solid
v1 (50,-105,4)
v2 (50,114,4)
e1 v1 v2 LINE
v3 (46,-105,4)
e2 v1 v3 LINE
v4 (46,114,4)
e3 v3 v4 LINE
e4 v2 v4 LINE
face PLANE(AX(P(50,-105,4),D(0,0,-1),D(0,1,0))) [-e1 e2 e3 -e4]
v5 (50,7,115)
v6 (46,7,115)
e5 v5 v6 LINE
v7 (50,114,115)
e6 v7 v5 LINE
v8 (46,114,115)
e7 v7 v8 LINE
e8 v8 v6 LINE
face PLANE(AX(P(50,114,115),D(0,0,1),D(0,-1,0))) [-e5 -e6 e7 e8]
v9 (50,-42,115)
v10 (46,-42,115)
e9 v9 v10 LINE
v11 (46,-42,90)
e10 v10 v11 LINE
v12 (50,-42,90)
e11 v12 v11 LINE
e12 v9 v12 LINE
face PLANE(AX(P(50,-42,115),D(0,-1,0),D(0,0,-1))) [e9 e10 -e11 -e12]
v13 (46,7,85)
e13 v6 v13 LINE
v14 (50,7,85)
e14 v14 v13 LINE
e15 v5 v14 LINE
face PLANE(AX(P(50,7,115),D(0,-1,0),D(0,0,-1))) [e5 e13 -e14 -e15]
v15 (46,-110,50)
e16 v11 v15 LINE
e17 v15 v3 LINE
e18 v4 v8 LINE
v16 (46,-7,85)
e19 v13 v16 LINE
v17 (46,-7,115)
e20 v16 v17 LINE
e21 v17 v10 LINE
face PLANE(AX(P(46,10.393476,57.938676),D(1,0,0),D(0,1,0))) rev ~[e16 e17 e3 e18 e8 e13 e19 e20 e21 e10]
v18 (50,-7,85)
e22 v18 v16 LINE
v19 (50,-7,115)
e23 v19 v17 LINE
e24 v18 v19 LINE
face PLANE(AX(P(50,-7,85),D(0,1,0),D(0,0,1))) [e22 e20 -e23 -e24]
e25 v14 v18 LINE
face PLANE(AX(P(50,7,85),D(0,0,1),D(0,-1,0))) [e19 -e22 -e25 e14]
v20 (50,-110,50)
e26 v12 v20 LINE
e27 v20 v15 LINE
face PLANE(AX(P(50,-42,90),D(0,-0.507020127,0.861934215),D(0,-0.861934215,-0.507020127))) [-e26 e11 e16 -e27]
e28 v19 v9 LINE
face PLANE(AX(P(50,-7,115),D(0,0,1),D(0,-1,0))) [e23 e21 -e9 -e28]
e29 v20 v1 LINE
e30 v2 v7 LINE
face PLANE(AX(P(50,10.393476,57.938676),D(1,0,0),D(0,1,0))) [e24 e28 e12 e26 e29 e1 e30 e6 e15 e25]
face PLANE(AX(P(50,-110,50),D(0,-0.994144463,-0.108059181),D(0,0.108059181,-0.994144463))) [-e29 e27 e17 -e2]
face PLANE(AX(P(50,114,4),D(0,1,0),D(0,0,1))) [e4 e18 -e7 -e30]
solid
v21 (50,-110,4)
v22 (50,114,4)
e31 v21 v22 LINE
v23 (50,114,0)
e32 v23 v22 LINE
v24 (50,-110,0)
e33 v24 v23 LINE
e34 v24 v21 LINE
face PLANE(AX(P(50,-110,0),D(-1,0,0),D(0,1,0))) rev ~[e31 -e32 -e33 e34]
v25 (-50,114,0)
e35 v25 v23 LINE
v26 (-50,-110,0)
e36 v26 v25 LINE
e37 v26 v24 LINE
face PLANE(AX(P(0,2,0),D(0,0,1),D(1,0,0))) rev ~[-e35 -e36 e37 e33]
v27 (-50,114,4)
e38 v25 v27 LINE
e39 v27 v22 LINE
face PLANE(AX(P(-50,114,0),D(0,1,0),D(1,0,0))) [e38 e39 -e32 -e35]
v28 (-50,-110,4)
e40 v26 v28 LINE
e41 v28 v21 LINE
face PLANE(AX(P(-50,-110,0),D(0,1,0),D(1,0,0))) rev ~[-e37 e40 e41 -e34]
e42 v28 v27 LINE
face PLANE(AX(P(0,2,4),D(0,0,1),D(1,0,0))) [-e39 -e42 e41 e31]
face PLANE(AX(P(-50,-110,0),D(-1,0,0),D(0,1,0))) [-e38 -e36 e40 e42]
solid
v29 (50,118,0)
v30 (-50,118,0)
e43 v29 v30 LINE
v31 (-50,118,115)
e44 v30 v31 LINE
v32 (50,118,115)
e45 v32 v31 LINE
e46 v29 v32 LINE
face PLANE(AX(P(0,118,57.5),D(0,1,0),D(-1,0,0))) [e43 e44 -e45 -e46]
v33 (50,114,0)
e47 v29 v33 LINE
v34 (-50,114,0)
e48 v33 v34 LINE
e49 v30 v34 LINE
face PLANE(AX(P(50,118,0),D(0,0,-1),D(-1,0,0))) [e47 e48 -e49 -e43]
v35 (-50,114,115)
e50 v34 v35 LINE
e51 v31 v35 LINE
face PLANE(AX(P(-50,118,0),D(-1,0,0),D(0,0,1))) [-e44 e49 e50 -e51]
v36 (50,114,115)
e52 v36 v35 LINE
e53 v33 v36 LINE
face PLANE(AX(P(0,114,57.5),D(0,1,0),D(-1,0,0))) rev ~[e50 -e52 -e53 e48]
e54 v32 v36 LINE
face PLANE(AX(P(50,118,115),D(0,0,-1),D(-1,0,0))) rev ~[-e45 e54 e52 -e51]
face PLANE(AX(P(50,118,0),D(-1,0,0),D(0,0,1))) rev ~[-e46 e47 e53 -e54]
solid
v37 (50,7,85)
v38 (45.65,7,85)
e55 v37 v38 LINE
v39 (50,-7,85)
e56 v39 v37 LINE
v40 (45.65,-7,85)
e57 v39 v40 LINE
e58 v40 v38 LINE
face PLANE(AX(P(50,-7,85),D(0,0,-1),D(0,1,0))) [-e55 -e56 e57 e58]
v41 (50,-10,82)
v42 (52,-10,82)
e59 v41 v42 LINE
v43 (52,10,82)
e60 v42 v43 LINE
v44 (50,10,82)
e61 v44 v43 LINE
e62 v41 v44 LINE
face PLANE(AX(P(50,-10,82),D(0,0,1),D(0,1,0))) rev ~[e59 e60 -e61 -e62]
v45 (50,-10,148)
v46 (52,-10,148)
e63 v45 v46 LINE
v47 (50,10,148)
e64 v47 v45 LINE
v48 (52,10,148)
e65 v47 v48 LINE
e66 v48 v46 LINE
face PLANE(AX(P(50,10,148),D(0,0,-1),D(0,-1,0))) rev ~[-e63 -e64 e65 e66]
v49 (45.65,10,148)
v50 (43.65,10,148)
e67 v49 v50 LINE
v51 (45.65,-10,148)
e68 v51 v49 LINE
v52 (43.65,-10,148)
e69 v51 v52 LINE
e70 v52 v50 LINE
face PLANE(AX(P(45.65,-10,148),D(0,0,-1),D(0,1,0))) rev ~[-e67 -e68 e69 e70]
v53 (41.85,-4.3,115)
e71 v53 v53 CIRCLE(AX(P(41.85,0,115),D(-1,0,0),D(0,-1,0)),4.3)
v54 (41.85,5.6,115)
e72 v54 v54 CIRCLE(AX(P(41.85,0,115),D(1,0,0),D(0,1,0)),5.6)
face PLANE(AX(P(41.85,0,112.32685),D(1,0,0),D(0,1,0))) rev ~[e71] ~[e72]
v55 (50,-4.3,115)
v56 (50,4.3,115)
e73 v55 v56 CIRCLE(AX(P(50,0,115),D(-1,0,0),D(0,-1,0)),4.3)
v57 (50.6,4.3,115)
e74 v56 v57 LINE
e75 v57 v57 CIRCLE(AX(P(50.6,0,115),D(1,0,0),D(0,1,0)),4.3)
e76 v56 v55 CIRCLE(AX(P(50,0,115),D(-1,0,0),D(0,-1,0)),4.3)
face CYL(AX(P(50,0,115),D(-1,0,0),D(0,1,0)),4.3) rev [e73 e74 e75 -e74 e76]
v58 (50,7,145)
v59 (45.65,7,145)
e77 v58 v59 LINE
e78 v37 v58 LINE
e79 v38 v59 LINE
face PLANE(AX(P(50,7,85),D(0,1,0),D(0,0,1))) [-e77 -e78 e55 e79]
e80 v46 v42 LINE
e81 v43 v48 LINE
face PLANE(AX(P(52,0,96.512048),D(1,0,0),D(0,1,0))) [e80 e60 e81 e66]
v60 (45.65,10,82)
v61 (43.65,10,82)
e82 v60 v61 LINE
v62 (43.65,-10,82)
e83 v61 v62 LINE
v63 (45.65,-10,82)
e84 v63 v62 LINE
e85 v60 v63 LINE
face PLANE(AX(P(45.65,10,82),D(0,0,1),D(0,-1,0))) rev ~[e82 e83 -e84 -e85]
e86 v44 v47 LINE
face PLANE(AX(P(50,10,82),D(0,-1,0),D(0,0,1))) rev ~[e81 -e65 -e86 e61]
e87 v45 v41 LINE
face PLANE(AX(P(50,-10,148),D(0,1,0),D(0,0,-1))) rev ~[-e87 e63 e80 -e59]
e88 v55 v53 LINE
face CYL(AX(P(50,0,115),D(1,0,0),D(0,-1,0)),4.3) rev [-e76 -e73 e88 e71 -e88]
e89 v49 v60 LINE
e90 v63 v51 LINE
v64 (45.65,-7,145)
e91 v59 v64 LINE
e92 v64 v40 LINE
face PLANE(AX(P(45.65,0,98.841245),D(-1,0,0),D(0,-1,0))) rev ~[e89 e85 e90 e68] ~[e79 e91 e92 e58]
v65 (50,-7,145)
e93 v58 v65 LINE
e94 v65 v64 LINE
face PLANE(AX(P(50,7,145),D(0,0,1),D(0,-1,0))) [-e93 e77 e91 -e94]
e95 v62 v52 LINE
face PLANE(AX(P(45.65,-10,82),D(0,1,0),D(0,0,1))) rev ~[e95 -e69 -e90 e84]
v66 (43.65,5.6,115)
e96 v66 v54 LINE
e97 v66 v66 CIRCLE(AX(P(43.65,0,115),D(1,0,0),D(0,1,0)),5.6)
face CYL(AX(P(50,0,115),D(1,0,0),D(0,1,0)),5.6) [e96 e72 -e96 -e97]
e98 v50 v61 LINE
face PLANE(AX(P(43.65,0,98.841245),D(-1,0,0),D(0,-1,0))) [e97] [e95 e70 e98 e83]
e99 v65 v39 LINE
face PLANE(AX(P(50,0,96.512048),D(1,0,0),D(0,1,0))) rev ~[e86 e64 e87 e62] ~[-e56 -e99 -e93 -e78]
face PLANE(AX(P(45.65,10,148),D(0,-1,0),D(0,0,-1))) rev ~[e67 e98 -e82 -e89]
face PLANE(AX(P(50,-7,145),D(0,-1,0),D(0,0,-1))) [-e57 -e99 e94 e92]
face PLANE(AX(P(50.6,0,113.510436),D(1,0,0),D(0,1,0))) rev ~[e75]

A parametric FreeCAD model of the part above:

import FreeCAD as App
import Part
import Sketcher
from FreeCAD import Vector

doc = App.newDocument("Part")
body = doc.addObject("PartDesign::Body", "Body")

# Sketch on XY plane
sketch1 = body.newObject("Sketcher::SketchObject", "Sketch")
sketch1.AttachmentSupport = (doc.getObject("XY_Plane"), [""])
sketch1.MapMode = "FlatFace"
sketch1.addGeometry([
    Part.LineSegment(Vector(-50, 114, 0), Vector(-50, -110, 0)),
    Part.LineSegment(Vector(-50, -110, 0), Vector(50, -110, 0)),
    Part.LineSegment(Vector(50, -110, 0), Vector(50, 114, 0)),
    Part.LineSegment(Vector(50, 114, 0), Vector(-50, 114, 0)),
], False)
sketch1.addConstraint([
    Sketcher.Constraint("Coincident", 0, 2, 1, 1),
    Sketcher.Constraint("Coincident", 1, 2, 2, 1),
    Sketcher.Constraint("Coincident", 2, 2, 3, 1),
    Sketcher.Constraint("Coincident", 3, 2, 0, 1),
    Sketcher.Constraint("Vertical", 0),
    Sketcher.Constraint("Horizontal", 1),
    Sketcher.Constraint("Vertical", 2),
    Sketcher.Constraint("Horizontal", 3),
    Sketcher.Constraint("DistanceX", 1, 1, 1, 2, 100.0),
    Sketcher.Constraint("DistanceY", 0, 2, 0, 1, 224.0),
    Sketcher.Constraint("DistanceX", 0, 2, -1, 1, 50.0),
    Sketcher.Constraint("DistanceY", 0, 2, -1, 1, 110.0),
])
pad1 = body.newObject("PartDesign::Pad", "Pad")
pad1.Profile = sketch1
pad1.Length = 4

# Sketch on YZ plane
sketch2 = body.newObject("Sketcher::SketchObject", "Sketch001")
sketch2.AttachmentSupport = (doc.getObject("YZ_Plane"), [""])
sketch2.MapMode = "FlatFace"
sketch2.AttachmentOffset = App.Placement(Vector(0, 0, 50), App.Rotation())
sketch2.addGeometry(Part.Circle(Vector(0, 115, 0), Vector(0, 0, 1), 4.3), False)
sketch2.addConstraint([
    Sketcher.Constraint("PointOnObject", 0, 3, -2),
    Sketcher.Constraint("Diameter", 0, 8.6),
    Sketcher.Constraint("DistanceY", -1, 1, 0, 3, 115.0),
])
pocket1 = body.newObject("PartDesign::Pocket", "Pocket")
pocket1.Profile = sketch2
pocket1.Length = 20
body2 = doc.addObject("PartDesign::Body", "Body001")

# Sketch on XZ plane
sketch3 = body2.newObject("Sketcher::SketchObject", "Sketch002")
sketch3.AttachmentSupport = (doc.getObject("XZ_Plane001"), [""])
sketch3.MapMode = "FlatFace"
sketch3.AttachmentOffset = App.Placement(Vector(0, 0, -118), App.Rotation())
sketch3.addGeometry([
    Part.LineSegment(Vector(50, 115, 0), Vector(50, 0, 0)),
    Part.LineSegment(Vector(50, 0, 0), Vector(-50, 0, 0)),
    Part.LineSegment(Vector(-50, 0, 0), Vector(-50, 115, 0)),
    Part.LineSegment(Vector(-50, 115, 0), Vector(50, 115, 0)),
], False)
sketch3.addConstraint([
    Sketcher.Constraint("Coincident", 0, 2, 1, 1),
    Sketcher.Constraint("Coincident", 1, 2, 2, 1),
    Sketcher.Constraint("Coincident", 2, 2, 3, 1),
    Sketcher.Constraint("Coincident", 3, 2, 0, 1),
    Sketcher.Constraint("Vertical", 0),
    Sketcher.Constraint("Horizontal", 1),
    Sketcher.Constraint("Vertical", 2),
    Sketcher.Constraint("Horizontal", 3),
    Sketcher.Constraint("Symmetric", 0, 2, 1, 2, -1, 1),
    Sketcher.Constraint("DistanceX", 1, 2, 1, 1, 100.0),
    Sketcher.Constraint("DistanceY", 0, 2, 0, 1, 115.0),
])
pad2 = body2.newObject("PartDesign::Pad", "Pad001")
pad2.Profile = sketch3
pad2.Length = 4
body3 = doc.addObject("PartDesign::Body", "Body002")

# Sketch on YZ plane
sketch4 = body3.newObject("Sketcher::SketchObject", "Sketch003")
sketch4.AttachmentSupport = (doc.getObject("YZ_Plane002"), [""])
sketch4.MapMode = "FlatFace"
sketch4.AttachmentOffset = App.Placement(Vector(0, 0, 50), App.Rotation())
sketch4.addGeometry([
    Part.LineSegment(Vector(-110, 50, 0), Vector(-105, 4, 0)),  # 0
    Part.LineSegment(Vector(-105, 4, 0), Vector(114, 4, 0)),  # 1
    Part.LineSegment(Vector(114, 4, 0), Vector(114, 115, 0)),  # 2
    Part.LineSegment(Vector(114, 115, 0), Vector(7, 115, 0)),  # 3
    Part.LineSegment(Vector(7, 115, 0), Vector(7, 85, 0)),  # 4
    Part.LineSegment(Vector(7, 85, 0), Vector(-7, 85, 0)),  # 5
    Part.LineSegment(Vector(-7, 85, 0), Vector(-7, 115, 0)),  # 6
    Part.LineSegment(Vector(-7, 115, 0), Vector(-42, 115, 0)),  # 7
    Part.LineSegment(Vector(-42, 115, 0), Vector(-42, 90, 0)),  # 8
    Part.LineSegment(Vector(-42, 90, 0), Vector(-110, 50, 0)),  # 9
], False)
sketch4.addConstraint([
    Sketcher.Constraint("Coincident", 0, 2, 1, 1),
    Sketcher.Constraint("Coincident", 1, 2, 2, 1),
    Sketcher.Constraint("Coincident", 2, 2, 3, 1),
    Sketcher.Constraint("Coincident", 3, 2, 4, 1),
    Sketcher.Constraint("Coincident", 4, 2, 5, 1),
    Sketcher.Constraint("Coincident", 5, 2, 6, 1),
    Sketcher.Constraint("Coincident", 6, 2, 7, 1),
    Sketcher.Constraint("Coincident", 7, 2, 8, 1),
    Sketcher.Constraint("Coincident", 8, 2, 9, 1),
    Sketcher.Constraint("Coincident", 9, 2, 0, 1),
    Sketcher.Constraint("Horizontal", 1),
    Sketcher.Constraint("Vertical", 2),
    Sketcher.Constraint("Horizontal", 3),
    Sketcher.Constraint("Vertical", 4),
    Sketcher.Constraint("Horizontal", 5),
    Sketcher.Constraint("Vertical", 6),
    Sketcher.Constraint("Horizontal", 7),
    Sketcher.Constraint("Vertical", 8),
    Sketcher.Constraint("Symmetric", 3, 2, 6, 2, -2),
    Sketcher.Constraint("DistanceX", 1, 1, 1, 2, 219.0),
    Sketcher.Constraint("DistanceX", 3, 2, 3, 1, 107.0),
    Sketcher.Constraint("DistanceX", 5, 2, 5, 1, 14.0),
    Sketcher.Constraint("DistanceX", 7, 2, 7, 1, 35.0),
    Sketcher.Constraint("DistanceY", 2, 1, 2, 2, 111.0),
    Sketcher.Constraint("DistanceY", 4, 2, 4, 1, 30.0),
    Sketcher.Constraint("DistanceY", 8, 2, 8, 1, 25.0),
    Sketcher.Constraint("DistanceY", -1, 1, 0, 2, 4.0),
    Sketcher.Constraint("DistanceX", 9, 2, -1, 1, 110.0),
    Sketcher.Constraint("DistanceY", -1, 1, 9, 2, 50.0),
])
pad3 = body3.newObject("PartDesign::Pad", "Pad002")
pad3.Profile = sketch4
pad3.Length = 4
pad3.Reversed = True
body4 = doc.addObject("PartDesign::Body", "Body003")

# Sketch on YZ plane
sketch5 = body4.newObject("Sketcher::SketchObject", "Sketch004")
sketch5.AttachmentSupport = (doc.getObject("YZ_Plane003"), [""])
sketch5.MapMode = "FlatFace"
sketch5.AttachmentOffset = App.Placement(Vector(0, 0, 50), App.Rotation())
sketch5.addGeometry([
    Part.LineSegment(Vector(-10, 82, 0), Vector(10, 82, 0)),
    Part.LineSegment(Vector(10, 82, 0), Vector(10, 148, 0)),
    Part.LineSegment(Vector(10, 148, 0), Vector(-10, 148, 0)),
    Part.LineSegment(Vector(-10, 148, 0), Vector(-10, 82, 0)),
], False)
sketch5.addConstraint([
    Sketcher.Constraint("Coincident", 0, 2, 1, 1),
    Sketcher.Constraint("Coincident", 1, 2, 2, 1),
    Sketcher.Constraint("Coincident", 2, 2, 3, 1),
    Sketcher.Constraint("Coincident", 3, 2, 0, 1),
    Sketcher.Constraint("Horizontal", 0),
    Sketcher.Constraint("Vertical", 1),
    Sketcher.Constraint("Horizontal", 2),
    Sketcher.Constraint("Vertical", 3),
    Sketcher.Constraint("DistanceX", 0, 1, 0, 2, 20.0),
    Sketcher.Constraint("DistanceY", 1, 1, 1, 2, 66.0),
    Sketcher.Constraint("DistanceX", -1, 1, 0, 2, 10.0),
    Sketcher.Constraint("DistanceY", -1, 1, 0, 2, 82.0),
])
pad4 = body4.newObject("PartDesign::Pad", "Pad003")
pad4.Profile = sketch5
pad4.Length = 2

# Sketch on YZ plane
sketch6 = body4.newObject("Sketcher::SketchObject", "Sketch005")
sketch6.AttachmentSupport = (doc.getObject("YZ_Plane003"), [""])
sketch6.MapMode = "FlatFace"
sketch6.AttachmentOffset = App.Placement(Vector(0, 0, 50), App.Rotation())
sketch6.addGeometry([
    Part.Circle(Vector(0, 115, 0), Vector(0, 0, 1), 5.6),
    Part.Circle(Vector(0, 115, 0), Vector(0, 0, 1), 4.3),
], False)
sketch6.addConstraint([
    Sketcher.Constraint("Coincident", 1, 3, 0, 3),
    Sketcher.Constraint("PointOnObject", 0, 3, -2),
    Sketcher.Constraint("Diameter", 0, 11.2),
    Sketcher.Constraint("Diameter", 1, 8.6),
    Sketcher.Constraint("DistanceY", -1, 1, 0, 3, 115.0),
])
pad5 = body4.newObject("PartDesign::Pad", "Pad004")
pad5.Profile = sketch6
pad5.Length = 8.15
pad5.Reversed = True
body5 = doc.addObject("PartDesign::Body", "Body004")

# Sketch on YZ plane
sketch7 = body5.newObject("Sketcher::SketchObject", "Sketch006")
sketch7.AttachmentSupport = (doc.getObject("YZ_Plane004"), [""])
sketch7.MapMode = "FlatFace"
sketch7.AttachmentOffset = App.Placement(Vector(0, 0, 50), App.Rotation())
sketch7.addGeometry([
    Part.LineSegment(Vector(-7, 85, 0), Vector(7, 85, 0)),  # 0
    Part.LineSegment(Vector(7, 85, 0), Vector(7, 145, 0)),  # 1
    Part.LineSegment(Vector(7, 145, 0), Vector(-7, 145, 0)),  # 2
    Part.LineSegment(Vector(-7, 145, 0), Vector(-7, 85, 0)),  # 3
    Part.Circle(Vector(0, 115, 0), Vector(0, 0, 1), 5.6),  # 4
], False)
sketch7.addConstraint([
    Sketcher.Constraint("Coincident", 0, 2, 1, 1),
    Sketcher.Constraint("Coincident", 1, 2, 2, 1),
    Sketcher.Constraint("Coincident", 2, 2, 3, 1),
    Sketcher.Constraint("Coincident", 3, 2, 0, 1),
    Sketcher.Constraint("Horizontal", 0),
    Sketcher.Constraint("Vertical", 1),
    Sketcher.Constraint("Horizontal", 2),
    Sketcher.Constraint("Vertical", 3),
    Sketcher.Constraint("PointOnObject", 4, 3, -2),
    Sketcher.Constraint("Diameter", 4, 11.2),
    Sketcher.Constraint("DistanceX", 0, 1, 0, 2, 14.0),
    Sketcher.Constraint("DistanceY", 1, 1, 1, 2, 60.0),
    Sketcher.Constraint("DistanceY", -1, 1, 4, 3, 115.0),
    Sketcher.Constraint("DistanceX", -1, 1, 0, 2, 7.0),
    Sketcher.Constraint("DistanceY", -1, 1, 0, 2, 85.0),
])
pad6 = body5.newObject("PartDesign::Pad", "Pad005")
pad6.Profile = sketch7
pad6.Length = 4.45
pad6.Reversed = True
doc.recompute()

boolean = body4.newObject("PartDesign::Boolean", "Boolean")
boolean.Type = "Fuse"
boolean.addObjects([body5])

# Sketch on YZ plane
sketch8 = body4.newObject("Sketcher::SketchObject", "Sketch007")
sketch8.AttachmentSupport = (doc.getObject("YZ_Plane003"), [""])
sketch8.MapMode = "FlatFace"
sketch8.AttachmentOffset = App.Placement(Vector(0, 0, 45.65), App.Rotation())
sketch8.addGeometry([
    Part.LineSegment(Vector(10, 82, 0), Vector(-10, 82, 0)),  # 0
    Part.LineSegment(Vector(-10, 82, 0), Vector(-10, 148, 0)),  # 1
    Part.LineSegment(Vector(-10, 148, 0), Vector(10, 148, 0)),  # 2
    Part.LineSegment(Vector(10, 148, 0), Vector(10, 82, 0)),  # 3
    Part.Circle(Vector(0, 115, 0), Vector(0, 0, 1), 5.6),  # 4
], False)
sketch8.addConstraint([
    Sketcher.Constraint("Coincident", 0, 2, 1, 1),
    Sketcher.Constraint("Coincident", 1, 2, 2, 1),
    Sketcher.Constraint("Coincident", 2, 2, 3, 1),
    Sketcher.Constraint("Coincident", 3, 2, 0, 1),
    Sketcher.Constraint("Horizontal", 0),
    Sketcher.Constraint("Vertical", 1),
    Sketcher.Constraint("Horizontal", 2),
    Sketcher.Constraint("Vertical", 3),
    Sketcher.Constraint("PointOnObject", 4, 3, -2),
    Sketcher.Constraint("Diameter", 4, 11.2),
    Sketcher.Constraint("DistanceX", 0, 2, 0, 1, 20.0),
    Sketcher.Constraint("DistanceY", 1, 1, 1, 2, 66.0),
    Sketcher.Constraint("DistanceY", -1, 1, 4, 3, 115.0),
    Sketcher.Constraint("DistanceX", 0, 2, -1, 1, 10.0),
    Sketcher.Constraint("DistanceY", -1, 1, 0, 2, 82.0),
])
pad7 = body4.newObject("PartDesign::Pad", "Pad006")
pad7.Profile = sketch8
pad7.Length = 2
pad7.Reversed = True

# Sketch on YZ plane
sketch9 = body4.newObject("Sketcher::SketchObject", "Sketch008")
sketch9.AttachmentSupport = (doc.getObject("YZ_Plane003"), [""])
sketch9.MapMode = "FlatFace"
sketch9.AttachmentOffset = App.Placement(Vector(0, 0, 50), App.Rotation())
sketch9.addGeometry(Part.Circle(Vector(0, 115, 0), Vector(0, 0, 1), 4.3), False)
sketch9.addConstraint([
    Sketcher.Constraint("PointOnObject", 0, 3, -2),
    Sketcher.Constraint("Diameter", 0, 8.6),
    Sketcher.Constraint("DistanceY", -1, 1, 0, 3, 115.0),
])
pocket2 = body4.newObject("PartDesign::Pocket", "Pocket001")
pocket2.Profile = sketch9
pocket2.Length = 0.6
pocket2.Reversed = True

doc.recompute()
